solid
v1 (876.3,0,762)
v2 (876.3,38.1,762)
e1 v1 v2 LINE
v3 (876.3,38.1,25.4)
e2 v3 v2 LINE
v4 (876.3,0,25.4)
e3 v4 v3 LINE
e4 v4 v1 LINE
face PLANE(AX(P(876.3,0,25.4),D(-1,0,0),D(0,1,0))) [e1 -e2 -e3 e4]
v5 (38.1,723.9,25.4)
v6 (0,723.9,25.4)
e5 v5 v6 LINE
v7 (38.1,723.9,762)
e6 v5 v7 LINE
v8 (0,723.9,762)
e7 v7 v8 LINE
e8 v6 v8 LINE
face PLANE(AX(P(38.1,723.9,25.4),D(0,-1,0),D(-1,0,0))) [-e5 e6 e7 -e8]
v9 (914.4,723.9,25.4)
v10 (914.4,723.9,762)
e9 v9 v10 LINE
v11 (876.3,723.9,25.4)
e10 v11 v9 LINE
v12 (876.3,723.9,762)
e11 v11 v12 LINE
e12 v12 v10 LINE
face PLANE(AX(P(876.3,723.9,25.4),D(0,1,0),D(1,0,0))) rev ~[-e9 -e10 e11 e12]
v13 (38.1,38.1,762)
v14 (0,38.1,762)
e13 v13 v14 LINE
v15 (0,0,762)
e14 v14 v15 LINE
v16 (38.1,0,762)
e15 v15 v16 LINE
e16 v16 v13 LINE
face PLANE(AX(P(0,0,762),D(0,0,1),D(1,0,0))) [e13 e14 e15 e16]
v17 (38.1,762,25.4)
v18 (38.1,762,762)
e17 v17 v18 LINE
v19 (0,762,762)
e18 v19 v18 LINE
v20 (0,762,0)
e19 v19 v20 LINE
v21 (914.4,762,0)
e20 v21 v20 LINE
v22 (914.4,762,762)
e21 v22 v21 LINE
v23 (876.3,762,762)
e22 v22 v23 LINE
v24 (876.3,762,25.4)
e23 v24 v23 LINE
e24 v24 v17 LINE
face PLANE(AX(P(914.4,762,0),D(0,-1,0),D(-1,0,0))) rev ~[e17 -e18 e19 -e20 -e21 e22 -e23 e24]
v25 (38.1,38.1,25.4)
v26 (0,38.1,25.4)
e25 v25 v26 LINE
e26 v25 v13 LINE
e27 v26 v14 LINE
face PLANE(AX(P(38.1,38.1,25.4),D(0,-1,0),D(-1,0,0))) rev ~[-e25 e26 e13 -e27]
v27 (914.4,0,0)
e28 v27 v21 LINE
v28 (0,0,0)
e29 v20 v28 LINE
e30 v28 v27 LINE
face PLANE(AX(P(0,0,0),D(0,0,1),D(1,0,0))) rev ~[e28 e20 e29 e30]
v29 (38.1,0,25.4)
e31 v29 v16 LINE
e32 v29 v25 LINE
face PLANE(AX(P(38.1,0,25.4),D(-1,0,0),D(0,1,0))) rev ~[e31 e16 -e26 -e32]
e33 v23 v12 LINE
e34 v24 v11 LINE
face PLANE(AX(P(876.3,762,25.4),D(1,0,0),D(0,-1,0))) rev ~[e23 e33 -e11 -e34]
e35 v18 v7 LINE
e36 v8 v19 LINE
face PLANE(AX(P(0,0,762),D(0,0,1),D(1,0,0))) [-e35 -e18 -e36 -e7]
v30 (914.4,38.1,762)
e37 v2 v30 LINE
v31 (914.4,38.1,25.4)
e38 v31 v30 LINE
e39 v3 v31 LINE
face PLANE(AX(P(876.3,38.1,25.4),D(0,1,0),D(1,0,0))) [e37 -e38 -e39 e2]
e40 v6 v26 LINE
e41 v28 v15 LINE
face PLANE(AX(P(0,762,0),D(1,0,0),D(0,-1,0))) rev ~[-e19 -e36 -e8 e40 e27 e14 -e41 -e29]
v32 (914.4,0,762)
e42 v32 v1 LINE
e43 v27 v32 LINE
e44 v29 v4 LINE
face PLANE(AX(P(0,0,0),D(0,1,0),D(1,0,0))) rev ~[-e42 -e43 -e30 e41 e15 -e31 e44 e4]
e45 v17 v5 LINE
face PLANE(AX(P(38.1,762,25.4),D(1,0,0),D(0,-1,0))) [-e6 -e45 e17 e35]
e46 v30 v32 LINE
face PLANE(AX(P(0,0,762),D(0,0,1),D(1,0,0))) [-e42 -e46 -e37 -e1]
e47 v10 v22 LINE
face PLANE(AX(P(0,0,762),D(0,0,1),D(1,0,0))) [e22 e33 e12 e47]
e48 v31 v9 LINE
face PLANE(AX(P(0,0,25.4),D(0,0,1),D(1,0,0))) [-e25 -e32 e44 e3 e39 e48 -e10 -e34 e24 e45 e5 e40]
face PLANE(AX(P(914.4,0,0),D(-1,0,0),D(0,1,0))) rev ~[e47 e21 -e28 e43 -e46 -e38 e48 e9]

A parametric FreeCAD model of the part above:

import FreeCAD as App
import Part
import Sketcher
Q = App.Units.Quantity


def add_polygon(sketch, points):
    """Adds a closed chain of lines whose ends are joined by coincident constraints."""
    first, n = sketch.GeometryCount, len(points)
    for a, b in zip(points, points[1:] + points[:1]):
        sketch.addGeometry(Part.LineSegment(App.Vector(*a, 0), App.Vector(*b, 0)), False)
    for i in range(n):
        sketch.addConstraint(Sketcher.Constraint("Coincident", first + i, 2, first + (i + 1) % n, 1))

doc = App.newDocument("Part")
body = doc.addObject("PartDesign::Body", "Body")

sketch1 = body.newObject("Sketcher::SketchObject", "Sketch")
sketch1.AttachmentSupport = (doc.getObject("XY_Plane"), [""])
sketch1.MapMode = "FlatFace"
add_polygon(sketch1, [(0, 762), (0, 0), (914, 0), (914, 762)])
sketch1.addConstraint(Sketcher.Constraint("Vertical", 0))
sketch1.addConstraint(Sketcher.Constraint("Horizontal", 1))
sketch1.addConstraint(Sketcher.Constraint("Vertical", 2))
sketch1.addConstraint(Sketcher.Constraint("Horizontal", 3))
sketch1.addConstraint(Sketcher.Constraint("Coincident", 0, 2, -1, 1))
sketch1.addConstraint(Sketcher.Constraint("DistanceX", 1, 1, 1, 2, Q("36 in")))
sketch1.addConstraint(Sketcher.Constraint("DistanceY", 0, 2, 0, 1, Q("30 in")))
pad1 = body.newObject("PartDesign::Pad", "Pad")
pad1.Profile = sketch1
pad1.Length = Q("1 in")

sketch2 = body.newObject("Sketcher::SketchObject", "Sketch001")
sketch2.AttachmentSupport = (doc.getObject("XY_Plane"), [""])
sketch2.MapMode = "FlatFace"
sketch2.AttachmentOffset = App.Placement(App.Vector(0, 0, 1 * 25.4), App.Rotation())
add_polygon(sketch2, [(38, 762), (0, 762), (0, 724), (38, 724)])
add_polygon(sketch2, [(914, 724), (914, 762), (876, 762), (876, 724)])
add_polygon(sketch2, [(876, 0), (914, 0), (914, 38), (876, 38)])
add_polygon(sketch2, [(0, 38), (0, 0), (38, 0), (38, 38)])
sketch2.addConstraint(Sketcher.Constraint("Horizontal", 0))
sketch2.addConstraint(Sketcher.Constraint("Vertical", 1))
sketch2.addConstraint(Sketcher.Constraint("Horizontal", 2))
sketch2.addConstraint(Sketcher.Constraint("Vertical", 3))
sketch2.addConstraint(Sketcher.Constraint("Vertical", 4))
sketch2.addConstraint(Sketcher.Constraint("Horizontal", 5))
sketch2.addConstraint(Sketcher.Constraint("Vertical", 6))
sketch2.addConstraint(Sketcher.Constraint("Horizontal", 7))
sketch2.addConstraint(Sketcher.Constraint("Horizontal", 8))
sketch2.addConstraint(Sketcher.Constraint("Vertical", 9))
sketch2.addConstraint(Sketcher.Constraint("Horizontal", 10))
sketch2.addConstraint(Sketcher.Constraint("Vertical", 11))
sketch2.addConstraint(Sketcher.Constraint("Vertical", 12))
sketch2.addConstraint(Sketcher.Constraint("Horizontal", 13))
sketch2.addConstraint(Sketcher.Constraint("Vertical", 14))
sketch2.addConstraint(Sketcher.Constraint("Horizontal", 15))
sketch2.addConstraint(Sketcher.Constraint("Coincident", 12, 2, -1, 1))
sketch2.addConstraint(Sketcher.Constraint("PointOnObject", 0, 2, -2))
sketch2.addConstraint(Sketcher.Constraint("PointOnObject", 8, 2, -1))
sketch2.addConstraint(Sketcher.Constraint("Horizontal", 3, 2, 4, 2))
sketch2.addConstraint(Sketcher.Constraint("Horizontal", 2, 2, 6, 2))
sketch2.addConstraint(Sketcher.Constraint("Horizontal", 10, 2, 14, 2))
sketch2.addConstraint(Sketcher.Constraint("Vertical", 7, 2, 8, 2))
sketch2.addConstraint(Sketcher.Constraint("Vertical", 6, 2, 10, 2))
sketch2.addConstraint(Sketcher.Constraint("Vertical", 3, 2, 13, 2))
sketch2.addConstraint(Sketcher.Constraint("Equal", 2, 5))
sketch2.addConstraint(Sketcher.Constraint("Equal", 15, 1))
sketch2.addConstraint(Sketcher.Constraint("Equal", 6, 9))
sketch2.addConstraint(Sketcher.Constraint("DistanceX", 0, 2, 0, 1, Q("1.5 in")))
sketch2.addConstraint(Sketcher.Constraint("DistanceY", -1, 1, 0, 2, Q("30 in")))
sketch2.addConstraint(Sketcher.Constraint("DistanceX", -1, 1, 4, 2, Q("36 in")))
pad2 = body.newObject("PartDesign::Pad", "Pad001")
pad2.Profile = sketch2
pad2.Length = Q("29 in")

doc.recompute()
